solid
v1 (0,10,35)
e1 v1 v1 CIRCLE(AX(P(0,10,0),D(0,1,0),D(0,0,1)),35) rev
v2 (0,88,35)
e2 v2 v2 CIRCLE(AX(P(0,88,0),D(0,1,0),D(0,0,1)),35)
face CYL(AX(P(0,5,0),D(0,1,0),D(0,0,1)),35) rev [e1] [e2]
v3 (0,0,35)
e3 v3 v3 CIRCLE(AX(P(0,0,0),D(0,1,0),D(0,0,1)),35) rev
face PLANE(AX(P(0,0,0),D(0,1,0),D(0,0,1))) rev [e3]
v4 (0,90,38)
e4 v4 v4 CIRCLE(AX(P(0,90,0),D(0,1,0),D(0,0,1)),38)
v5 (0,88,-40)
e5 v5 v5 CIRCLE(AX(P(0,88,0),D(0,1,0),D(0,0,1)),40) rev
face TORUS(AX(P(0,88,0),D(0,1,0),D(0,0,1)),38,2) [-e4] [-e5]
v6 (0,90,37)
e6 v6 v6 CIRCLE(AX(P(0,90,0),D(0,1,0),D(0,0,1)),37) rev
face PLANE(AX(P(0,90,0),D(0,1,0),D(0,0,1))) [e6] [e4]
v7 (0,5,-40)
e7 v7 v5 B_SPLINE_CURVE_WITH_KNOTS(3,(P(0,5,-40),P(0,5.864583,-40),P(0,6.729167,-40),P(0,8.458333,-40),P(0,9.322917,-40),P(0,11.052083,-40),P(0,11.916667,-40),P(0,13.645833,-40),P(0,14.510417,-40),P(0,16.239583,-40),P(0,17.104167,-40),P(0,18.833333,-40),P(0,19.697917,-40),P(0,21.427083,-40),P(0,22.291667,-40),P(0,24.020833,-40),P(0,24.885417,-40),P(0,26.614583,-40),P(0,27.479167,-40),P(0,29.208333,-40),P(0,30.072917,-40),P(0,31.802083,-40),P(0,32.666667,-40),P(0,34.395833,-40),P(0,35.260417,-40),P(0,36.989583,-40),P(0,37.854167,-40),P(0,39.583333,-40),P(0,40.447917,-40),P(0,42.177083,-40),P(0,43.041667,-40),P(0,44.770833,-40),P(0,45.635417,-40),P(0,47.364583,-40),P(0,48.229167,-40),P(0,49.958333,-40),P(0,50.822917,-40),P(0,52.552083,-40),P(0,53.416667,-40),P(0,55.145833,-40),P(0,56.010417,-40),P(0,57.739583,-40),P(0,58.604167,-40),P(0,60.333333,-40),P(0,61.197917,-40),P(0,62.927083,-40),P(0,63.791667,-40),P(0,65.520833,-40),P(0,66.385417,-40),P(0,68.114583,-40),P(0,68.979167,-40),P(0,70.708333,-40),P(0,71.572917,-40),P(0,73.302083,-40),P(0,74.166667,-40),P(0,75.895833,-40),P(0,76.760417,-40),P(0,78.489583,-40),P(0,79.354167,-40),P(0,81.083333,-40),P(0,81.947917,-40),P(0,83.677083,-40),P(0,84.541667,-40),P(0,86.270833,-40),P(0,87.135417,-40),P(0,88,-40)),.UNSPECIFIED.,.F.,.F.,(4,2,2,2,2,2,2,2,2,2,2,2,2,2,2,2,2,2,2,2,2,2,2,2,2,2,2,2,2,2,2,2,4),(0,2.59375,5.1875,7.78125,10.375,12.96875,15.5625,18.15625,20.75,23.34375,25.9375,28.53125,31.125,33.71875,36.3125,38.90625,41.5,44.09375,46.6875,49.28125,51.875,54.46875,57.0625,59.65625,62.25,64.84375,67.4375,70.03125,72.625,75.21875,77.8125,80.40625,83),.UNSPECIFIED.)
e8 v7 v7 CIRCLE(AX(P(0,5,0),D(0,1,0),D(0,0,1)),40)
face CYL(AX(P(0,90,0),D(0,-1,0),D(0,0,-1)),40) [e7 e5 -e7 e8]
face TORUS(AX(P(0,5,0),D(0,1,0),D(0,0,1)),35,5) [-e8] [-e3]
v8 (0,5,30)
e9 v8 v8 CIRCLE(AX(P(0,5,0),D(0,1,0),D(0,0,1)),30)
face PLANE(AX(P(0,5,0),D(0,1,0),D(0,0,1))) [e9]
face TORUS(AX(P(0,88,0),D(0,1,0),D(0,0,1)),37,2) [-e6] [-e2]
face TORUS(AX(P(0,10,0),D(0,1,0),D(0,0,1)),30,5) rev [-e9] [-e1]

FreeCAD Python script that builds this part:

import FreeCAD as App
import Part
import Sketcher

V = App.Vector


def edges_at(feature, points):
    """Names of the edges that pass closest to the given points."""
    edges = feature.Shape.Edges
    near = lambda p: min(range(len(edges)), key=lambda i: edges[i].distToShape(Part.Vertex(*p))[0])
    return sorted({f"Edge{near(p) + 1}" for p in points})

doc = App.newDocument("Part")
body = doc.addObject("PartDesign::Body", "Body")

# Sketch on XZ plane
sketch1 = body.newObject("Sketcher::SketchObject", "Sketch")
sketch1.AttachmentSupport = (doc.getObject("XZ_Plane"), [""])
sketch1.MapMode = "FlatFace"
sketch1.addGeometry(Part.Circle(V(0, 0, 0), V(0, 0, 1), 40), False)
sketch1.addConstraint(Sketcher.Constraint("Coincident", 0, 3, -1, 1))
sketch1.addConstraint(Sketcher.Constraint("Diameter", 0, 80.0))
pad1 = body.newObject("PartDesign::Pad", "Pad")
pad1.Profile = sketch1
pad1.Length = 90
pad1.Reversed = True

# Sketch on XZ plane
sketch2 = body.newObject("Sketcher::SketchObject", "Sketch001")
sketch2.AttachmentSupport = (doc.getObject("XZ_Plane"), [""])
sketch2.MapMode = "FlatFace"
sketch2.AttachmentOffset = App.Placement(V(0, 0, -90), App.Rotation())
sketch2.addGeometry(Part.Circle(V(0, 0, 0), V(0, 0, 1), 35), False)
sketch2.addConstraint(Sketcher.Constraint("Coincident", 0, 3, -1, 1))
sketch2.addConstraint(Sketcher.Constraint("Diameter", 0, 70.0))
pocket1 = body.newObject("PartDesign::Pocket", "Pocket")
pocket1.Profile = sketch2
pocket1.Length = 85
pocket1.Reversed = True
doc.recompute()

fillet = body.newObject("PartDesign::Fillet", "Fillet")
fillet.Base = (pocket1, edges_at(pocket1, [(0, 90, 40), (0, 90, -35)]))
fillet.Radius = 2
doc.recompute()

fillet2 = body.newObject("PartDesign::Fillet", "Fillet001")
fillet2.Base = (fillet, edges_at(fillet, [(0, 0, 40), (0, 5, -35)]))
fillet2.Radius = 5

doc.recompute()
